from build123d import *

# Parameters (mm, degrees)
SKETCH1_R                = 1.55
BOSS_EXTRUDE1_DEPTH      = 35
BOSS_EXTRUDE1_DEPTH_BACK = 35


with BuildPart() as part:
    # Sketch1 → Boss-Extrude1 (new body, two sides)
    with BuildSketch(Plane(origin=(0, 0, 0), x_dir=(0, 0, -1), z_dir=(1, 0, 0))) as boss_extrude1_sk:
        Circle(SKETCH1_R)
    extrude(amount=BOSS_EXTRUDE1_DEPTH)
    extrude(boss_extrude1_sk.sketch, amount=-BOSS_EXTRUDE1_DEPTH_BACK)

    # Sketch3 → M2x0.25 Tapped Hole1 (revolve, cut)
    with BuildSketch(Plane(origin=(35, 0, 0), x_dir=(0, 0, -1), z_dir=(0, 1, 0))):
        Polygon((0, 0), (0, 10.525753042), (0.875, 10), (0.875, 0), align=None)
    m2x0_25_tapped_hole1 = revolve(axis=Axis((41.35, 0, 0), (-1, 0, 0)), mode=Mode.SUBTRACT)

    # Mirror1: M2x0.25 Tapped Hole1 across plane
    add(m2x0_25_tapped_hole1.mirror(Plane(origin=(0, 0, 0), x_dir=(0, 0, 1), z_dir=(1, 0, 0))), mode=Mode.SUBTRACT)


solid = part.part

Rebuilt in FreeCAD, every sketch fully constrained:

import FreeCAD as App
import Part
import Sketcher
from FreeCAD import Vector
Q = App.Units.Quantity

doc = App.newDocument("Part")
body = doc.addObject("PartDesign::Body", "Body")

# Sketch on YZ plane
sketch1 = body.newObject("Sketcher::SketchObject", "Sketch")
sketch1.AttachmentSupport = (doc.getObject("YZ_Plane"), [""])
sketch1.MapMode = "FlatFace"
sketch1.addGeometry(Part.Circle(Vector(0, 0, 0), Vector(0, 0, 1), 1.6), False)
sketch1.addConstraint([
    Sketcher.Constraint("Coincident", 0, 3, -1, 1),
    Sketcher.Constraint("Diameter", 0, 3.1),
])
pad1 = body.newObject("PartDesign::Pad", "Pad")
pad1.Profile = sketch1
pad1.Type = "TwoLengths"
pad1.Length = 35
pad1.Length2 = 35

# Sketch on XZ plane
sketch2 = body.newObject("Sketcher::SketchObject", "Sketch001")
sketch2.AttachmentSupport = (doc.getObject("XZ_Plane"), [""])
sketch2.MapMode = "FlatFace"
sketch2.addGeometry([
    Part.LineSegment(Vector(24.5, 0, 0), Vector(35, 0, 0)),
    Part.LineSegment(Vector(35, 0, 0), Vector(35, -0.9, 0)),
    Part.LineSegment(Vector(35, -0.9, 0), Vector(25, -0.9, 0)),
    Part.LineSegment(Vector(25, -0.9, 0), Vector(24.5, 0, 0)),
], False)
sketch2.addConstraint([
    Sketcher.Constraint("Coincident", 0, 2, 1, 1),
    Sketcher.Constraint("Coincident", 1, 2, 2, 1),
    Sketcher.Constraint("Coincident", 2, 2, 3, 1),
    Sketcher.Constraint("Coincident", 3, 2, 0, 1),
    Sketcher.Constraint("Horizontal", 0),
    Sketcher.Constraint("Vertical", 1),
    Sketcher.Constraint("Horizontal", 2),
    Sketcher.Constraint("PointOnObject", 0, 2, -1),
    Sketcher.Constraint("DistanceX", 2, 2, 2, 1, 10.0),
    Sketcher.Constraint("Angle", 3, Q("121 deg")),
    Sketcher.Constraint("DistanceX", -1, 1, 0, 2, 35.0),
    Sketcher.Constraint("DistanceY", 1, 2, 1, 1, 0.875),
])
groove = body.newObject("PartDesign::Groove", "Groove")
groove.Profile = sketch2
groove.ReferenceAxis = (sketch2, ["H_Axis"])
groove.Angle = 360
doc.recompute()

mirrored = body.newObject("PartDesign::Mirrored", "Mirrored")
mirrored.Originals = [groove]
mirrored.MirrorPlane = (doc.getObject("YZ_Plane"), [""])
body.Tip = mirrored

doc.recompute()
